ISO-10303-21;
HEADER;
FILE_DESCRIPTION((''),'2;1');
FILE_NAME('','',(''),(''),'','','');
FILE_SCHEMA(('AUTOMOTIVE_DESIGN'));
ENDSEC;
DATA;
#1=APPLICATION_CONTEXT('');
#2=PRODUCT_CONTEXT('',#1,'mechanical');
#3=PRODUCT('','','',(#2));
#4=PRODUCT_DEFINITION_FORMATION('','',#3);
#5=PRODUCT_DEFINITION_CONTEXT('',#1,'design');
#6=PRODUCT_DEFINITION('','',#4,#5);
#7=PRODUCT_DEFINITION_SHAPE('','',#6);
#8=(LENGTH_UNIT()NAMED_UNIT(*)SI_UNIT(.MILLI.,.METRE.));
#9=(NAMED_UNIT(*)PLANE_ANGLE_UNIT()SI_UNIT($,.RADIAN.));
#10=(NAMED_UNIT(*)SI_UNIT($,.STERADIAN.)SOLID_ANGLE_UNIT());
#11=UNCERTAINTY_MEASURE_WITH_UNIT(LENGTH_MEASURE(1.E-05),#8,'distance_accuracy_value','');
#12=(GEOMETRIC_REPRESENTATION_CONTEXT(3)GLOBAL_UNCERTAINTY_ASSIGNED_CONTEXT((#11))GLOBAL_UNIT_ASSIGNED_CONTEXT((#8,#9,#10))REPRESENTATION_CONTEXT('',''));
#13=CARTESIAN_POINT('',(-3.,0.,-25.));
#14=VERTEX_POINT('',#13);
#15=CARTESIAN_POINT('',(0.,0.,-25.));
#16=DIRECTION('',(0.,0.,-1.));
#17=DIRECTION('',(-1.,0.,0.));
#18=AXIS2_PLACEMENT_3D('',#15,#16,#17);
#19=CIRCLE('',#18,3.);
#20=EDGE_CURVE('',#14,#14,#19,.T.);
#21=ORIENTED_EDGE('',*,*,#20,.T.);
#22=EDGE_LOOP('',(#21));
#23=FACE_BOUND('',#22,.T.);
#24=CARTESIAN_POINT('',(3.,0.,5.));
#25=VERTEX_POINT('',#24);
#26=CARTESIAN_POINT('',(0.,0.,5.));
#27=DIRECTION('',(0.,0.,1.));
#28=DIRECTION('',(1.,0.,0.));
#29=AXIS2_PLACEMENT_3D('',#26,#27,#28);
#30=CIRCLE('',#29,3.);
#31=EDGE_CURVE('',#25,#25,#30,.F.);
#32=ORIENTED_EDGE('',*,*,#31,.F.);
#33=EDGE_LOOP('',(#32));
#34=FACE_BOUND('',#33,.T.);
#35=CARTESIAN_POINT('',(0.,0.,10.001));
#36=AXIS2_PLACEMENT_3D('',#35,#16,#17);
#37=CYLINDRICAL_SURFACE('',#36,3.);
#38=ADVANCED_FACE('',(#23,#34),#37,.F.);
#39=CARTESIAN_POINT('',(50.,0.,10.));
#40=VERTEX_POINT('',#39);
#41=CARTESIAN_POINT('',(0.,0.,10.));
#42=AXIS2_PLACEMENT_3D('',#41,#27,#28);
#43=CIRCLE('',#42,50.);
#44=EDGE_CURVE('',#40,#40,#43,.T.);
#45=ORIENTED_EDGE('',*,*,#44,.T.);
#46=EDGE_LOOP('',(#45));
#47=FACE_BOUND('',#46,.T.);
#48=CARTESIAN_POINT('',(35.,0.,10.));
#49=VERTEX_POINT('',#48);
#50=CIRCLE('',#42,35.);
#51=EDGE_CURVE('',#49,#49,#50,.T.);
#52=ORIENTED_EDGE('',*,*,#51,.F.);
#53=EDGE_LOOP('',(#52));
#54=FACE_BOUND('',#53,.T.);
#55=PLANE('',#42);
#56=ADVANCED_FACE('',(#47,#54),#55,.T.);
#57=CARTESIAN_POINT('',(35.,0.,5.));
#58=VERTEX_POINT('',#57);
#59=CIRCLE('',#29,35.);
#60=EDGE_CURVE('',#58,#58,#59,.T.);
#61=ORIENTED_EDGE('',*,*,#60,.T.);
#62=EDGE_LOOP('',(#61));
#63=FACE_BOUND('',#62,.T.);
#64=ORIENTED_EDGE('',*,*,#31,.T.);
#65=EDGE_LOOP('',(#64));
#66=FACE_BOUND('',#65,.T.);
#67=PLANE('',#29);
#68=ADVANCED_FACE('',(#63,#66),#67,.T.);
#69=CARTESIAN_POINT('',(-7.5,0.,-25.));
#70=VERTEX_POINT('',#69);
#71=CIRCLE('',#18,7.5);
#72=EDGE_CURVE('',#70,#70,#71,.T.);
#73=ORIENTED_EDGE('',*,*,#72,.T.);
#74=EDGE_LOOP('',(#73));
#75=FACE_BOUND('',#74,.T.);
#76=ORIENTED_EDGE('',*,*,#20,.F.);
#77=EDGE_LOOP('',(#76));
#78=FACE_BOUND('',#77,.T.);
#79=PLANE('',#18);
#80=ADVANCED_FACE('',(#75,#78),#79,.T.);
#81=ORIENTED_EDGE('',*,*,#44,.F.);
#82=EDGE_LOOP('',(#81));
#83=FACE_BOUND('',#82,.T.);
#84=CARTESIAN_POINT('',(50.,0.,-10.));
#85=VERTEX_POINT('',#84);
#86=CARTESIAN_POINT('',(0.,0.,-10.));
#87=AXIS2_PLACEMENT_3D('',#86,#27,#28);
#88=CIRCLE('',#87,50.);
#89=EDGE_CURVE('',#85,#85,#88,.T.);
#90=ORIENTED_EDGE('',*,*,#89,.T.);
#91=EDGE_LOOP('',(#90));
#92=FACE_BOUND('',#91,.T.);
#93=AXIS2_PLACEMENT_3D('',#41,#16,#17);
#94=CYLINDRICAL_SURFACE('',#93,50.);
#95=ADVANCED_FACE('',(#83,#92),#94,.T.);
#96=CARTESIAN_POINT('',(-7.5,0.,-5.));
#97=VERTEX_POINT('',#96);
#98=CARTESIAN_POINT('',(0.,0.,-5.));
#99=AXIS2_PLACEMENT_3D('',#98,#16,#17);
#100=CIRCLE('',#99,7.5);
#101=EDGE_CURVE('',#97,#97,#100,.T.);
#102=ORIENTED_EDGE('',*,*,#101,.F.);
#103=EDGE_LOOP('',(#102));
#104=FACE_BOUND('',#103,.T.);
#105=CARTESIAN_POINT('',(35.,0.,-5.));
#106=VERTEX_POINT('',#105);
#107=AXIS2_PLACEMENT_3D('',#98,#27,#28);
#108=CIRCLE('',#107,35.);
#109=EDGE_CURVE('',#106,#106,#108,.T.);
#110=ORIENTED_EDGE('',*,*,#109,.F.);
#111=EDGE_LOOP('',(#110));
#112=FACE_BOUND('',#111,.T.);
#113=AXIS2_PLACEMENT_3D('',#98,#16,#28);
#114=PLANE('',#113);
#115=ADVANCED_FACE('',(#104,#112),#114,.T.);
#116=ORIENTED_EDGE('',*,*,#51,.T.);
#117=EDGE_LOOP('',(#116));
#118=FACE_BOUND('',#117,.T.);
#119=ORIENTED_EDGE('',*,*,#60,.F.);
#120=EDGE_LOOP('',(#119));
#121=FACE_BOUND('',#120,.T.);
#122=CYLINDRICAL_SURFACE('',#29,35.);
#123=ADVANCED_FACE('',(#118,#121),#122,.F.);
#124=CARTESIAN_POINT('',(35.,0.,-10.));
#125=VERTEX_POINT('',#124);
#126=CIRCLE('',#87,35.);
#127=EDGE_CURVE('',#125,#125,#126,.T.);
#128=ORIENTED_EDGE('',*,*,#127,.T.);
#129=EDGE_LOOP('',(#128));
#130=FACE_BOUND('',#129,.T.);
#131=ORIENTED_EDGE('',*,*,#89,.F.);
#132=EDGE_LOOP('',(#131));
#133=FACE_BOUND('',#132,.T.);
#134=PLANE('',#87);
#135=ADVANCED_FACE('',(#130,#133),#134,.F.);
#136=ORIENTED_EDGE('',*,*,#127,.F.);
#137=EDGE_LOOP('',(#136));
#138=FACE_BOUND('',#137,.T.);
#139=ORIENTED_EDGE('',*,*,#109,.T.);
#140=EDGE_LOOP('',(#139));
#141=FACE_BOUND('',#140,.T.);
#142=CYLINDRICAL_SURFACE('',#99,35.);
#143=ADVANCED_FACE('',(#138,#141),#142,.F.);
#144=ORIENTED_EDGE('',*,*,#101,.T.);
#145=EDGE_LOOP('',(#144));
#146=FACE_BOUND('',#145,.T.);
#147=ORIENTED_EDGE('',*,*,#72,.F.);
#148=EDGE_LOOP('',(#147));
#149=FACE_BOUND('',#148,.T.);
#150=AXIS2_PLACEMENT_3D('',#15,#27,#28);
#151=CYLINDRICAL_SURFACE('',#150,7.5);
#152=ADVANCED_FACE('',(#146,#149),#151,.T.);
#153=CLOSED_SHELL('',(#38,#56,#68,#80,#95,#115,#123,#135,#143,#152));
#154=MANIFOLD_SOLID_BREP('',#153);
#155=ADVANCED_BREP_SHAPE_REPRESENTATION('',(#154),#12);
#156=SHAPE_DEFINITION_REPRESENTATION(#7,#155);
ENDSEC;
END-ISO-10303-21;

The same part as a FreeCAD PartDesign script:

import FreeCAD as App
import Part
import Sketcher

doc = App.newDocument("Part")
body = doc.addObject("PartDesign::Body", "Body")

sketch1 = body.newObject("Sketcher::SketchObject", "Sketch")
sketch1.AttachmentSupport = (doc.getObject("XY_Plane"), [""])
sketch1.MapMode = "FlatFace"
sketch1.addGeometry(Part.Circle(App.Vector(0, 0, 0), App.Vector(0, 0, 1), 50), False)
sketch1.addConstraint([
    Sketcher.Constraint("Coincident", 0, 3, -1, 1),
    Sketcher.Constraint("Diameter", 0, 100.0),
])
pad1 = body.newObject("PartDesign::Pad", "Pad")
pad1.Profile = sketch1
pad1.Length = 20
pad1.Midplane = True

sketch2 = body.newObject("Sketcher::SketchObject", "Sketch001")
sketch2.AttachmentSupport = (doc.getObject("XY_Plane"), [""])
sketch2.MapMode = "FlatFace"
sketch2.AttachmentOffset = App.Placement(App.Vector(0, 0, 10), App.Rotation())
sketch2.addGeometry(Part.Circle(App.Vector(0, 0, 0), App.Vector(0, 0, 1), 35), False)
sketch2.addConstraint([
    Sketcher.Constraint("Coincident", 0, 3, -1, 1),
    Sketcher.Constraint("Diameter", 0, 70.0),
])
pocket1 = body.newObject("PartDesign::Pocket", "Pocket")
pocket1.Profile = sketch2
pocket1.Length = 5
doc.recompute()

mirrored = body.newObject("PartDesign::Mirrored", "Mirrored")
mirrored.Originals = [pocket1]
mirrored.MirrorPlane = (doc.getObject("XY_Plane"), [""])
body.Tip = mirrored

sketch3 = body.newObject("Sketcher::SketchObject", "Sketch002")
sketch3.AttachmentSupport = (doc.getObject("XY_Plane"), [""])
sketch3.MapMode = "FlatFace"
sketch3.AttachmentOffset = App.Placement(App.Vector(0, 0, -5), App.Rotation())
sketch3.addGeometry(Part.Circle(App.Vector(0, 0, 0), App.Vector(0, 0, 1), 8), False)
sketch3.addConstraint([
    Sketcher.Constraint("Coincident", 0, 3, -1, 1),
    Sketcher.Constraint("Diameter", 0, 15.0),
])
pad2 = body.newObject("PartDesign::Pad", "Pad001")
pad2.Profile = sketch3
pad2.Length = 20
pad2.Reversed = True

sketch4 = body.newObject("Sketcher::SketchObject", "Sketch003")
sketch4.AttachmentSupport = (doc.getObject("XY_Plane"), [""])
sketch4.MapMode = "FlatFace"
sketch4.AttachmentOffset = App.Placement(App.Vector(0, 0, -25), App.Rotation())
sketch4.addGeometry(Part.Circle(App.Vector(0, 0, 0), App.Vector(0, 0, 1), 3), False)
sketch4.addConstraint([
    Sketcher.Constraint("Coincident", 0, 3, -1, 1),
    Sketcher.Constraint("Diameter", 0, 6.0),
])
pocket2 = body.newObject("PartDesign::Pocket", "Pocket001")
pocket2.Profile = sketch4
pocket2.Type = "UpToFirst"
pocket2.Reversed = True

doc.recompute()
